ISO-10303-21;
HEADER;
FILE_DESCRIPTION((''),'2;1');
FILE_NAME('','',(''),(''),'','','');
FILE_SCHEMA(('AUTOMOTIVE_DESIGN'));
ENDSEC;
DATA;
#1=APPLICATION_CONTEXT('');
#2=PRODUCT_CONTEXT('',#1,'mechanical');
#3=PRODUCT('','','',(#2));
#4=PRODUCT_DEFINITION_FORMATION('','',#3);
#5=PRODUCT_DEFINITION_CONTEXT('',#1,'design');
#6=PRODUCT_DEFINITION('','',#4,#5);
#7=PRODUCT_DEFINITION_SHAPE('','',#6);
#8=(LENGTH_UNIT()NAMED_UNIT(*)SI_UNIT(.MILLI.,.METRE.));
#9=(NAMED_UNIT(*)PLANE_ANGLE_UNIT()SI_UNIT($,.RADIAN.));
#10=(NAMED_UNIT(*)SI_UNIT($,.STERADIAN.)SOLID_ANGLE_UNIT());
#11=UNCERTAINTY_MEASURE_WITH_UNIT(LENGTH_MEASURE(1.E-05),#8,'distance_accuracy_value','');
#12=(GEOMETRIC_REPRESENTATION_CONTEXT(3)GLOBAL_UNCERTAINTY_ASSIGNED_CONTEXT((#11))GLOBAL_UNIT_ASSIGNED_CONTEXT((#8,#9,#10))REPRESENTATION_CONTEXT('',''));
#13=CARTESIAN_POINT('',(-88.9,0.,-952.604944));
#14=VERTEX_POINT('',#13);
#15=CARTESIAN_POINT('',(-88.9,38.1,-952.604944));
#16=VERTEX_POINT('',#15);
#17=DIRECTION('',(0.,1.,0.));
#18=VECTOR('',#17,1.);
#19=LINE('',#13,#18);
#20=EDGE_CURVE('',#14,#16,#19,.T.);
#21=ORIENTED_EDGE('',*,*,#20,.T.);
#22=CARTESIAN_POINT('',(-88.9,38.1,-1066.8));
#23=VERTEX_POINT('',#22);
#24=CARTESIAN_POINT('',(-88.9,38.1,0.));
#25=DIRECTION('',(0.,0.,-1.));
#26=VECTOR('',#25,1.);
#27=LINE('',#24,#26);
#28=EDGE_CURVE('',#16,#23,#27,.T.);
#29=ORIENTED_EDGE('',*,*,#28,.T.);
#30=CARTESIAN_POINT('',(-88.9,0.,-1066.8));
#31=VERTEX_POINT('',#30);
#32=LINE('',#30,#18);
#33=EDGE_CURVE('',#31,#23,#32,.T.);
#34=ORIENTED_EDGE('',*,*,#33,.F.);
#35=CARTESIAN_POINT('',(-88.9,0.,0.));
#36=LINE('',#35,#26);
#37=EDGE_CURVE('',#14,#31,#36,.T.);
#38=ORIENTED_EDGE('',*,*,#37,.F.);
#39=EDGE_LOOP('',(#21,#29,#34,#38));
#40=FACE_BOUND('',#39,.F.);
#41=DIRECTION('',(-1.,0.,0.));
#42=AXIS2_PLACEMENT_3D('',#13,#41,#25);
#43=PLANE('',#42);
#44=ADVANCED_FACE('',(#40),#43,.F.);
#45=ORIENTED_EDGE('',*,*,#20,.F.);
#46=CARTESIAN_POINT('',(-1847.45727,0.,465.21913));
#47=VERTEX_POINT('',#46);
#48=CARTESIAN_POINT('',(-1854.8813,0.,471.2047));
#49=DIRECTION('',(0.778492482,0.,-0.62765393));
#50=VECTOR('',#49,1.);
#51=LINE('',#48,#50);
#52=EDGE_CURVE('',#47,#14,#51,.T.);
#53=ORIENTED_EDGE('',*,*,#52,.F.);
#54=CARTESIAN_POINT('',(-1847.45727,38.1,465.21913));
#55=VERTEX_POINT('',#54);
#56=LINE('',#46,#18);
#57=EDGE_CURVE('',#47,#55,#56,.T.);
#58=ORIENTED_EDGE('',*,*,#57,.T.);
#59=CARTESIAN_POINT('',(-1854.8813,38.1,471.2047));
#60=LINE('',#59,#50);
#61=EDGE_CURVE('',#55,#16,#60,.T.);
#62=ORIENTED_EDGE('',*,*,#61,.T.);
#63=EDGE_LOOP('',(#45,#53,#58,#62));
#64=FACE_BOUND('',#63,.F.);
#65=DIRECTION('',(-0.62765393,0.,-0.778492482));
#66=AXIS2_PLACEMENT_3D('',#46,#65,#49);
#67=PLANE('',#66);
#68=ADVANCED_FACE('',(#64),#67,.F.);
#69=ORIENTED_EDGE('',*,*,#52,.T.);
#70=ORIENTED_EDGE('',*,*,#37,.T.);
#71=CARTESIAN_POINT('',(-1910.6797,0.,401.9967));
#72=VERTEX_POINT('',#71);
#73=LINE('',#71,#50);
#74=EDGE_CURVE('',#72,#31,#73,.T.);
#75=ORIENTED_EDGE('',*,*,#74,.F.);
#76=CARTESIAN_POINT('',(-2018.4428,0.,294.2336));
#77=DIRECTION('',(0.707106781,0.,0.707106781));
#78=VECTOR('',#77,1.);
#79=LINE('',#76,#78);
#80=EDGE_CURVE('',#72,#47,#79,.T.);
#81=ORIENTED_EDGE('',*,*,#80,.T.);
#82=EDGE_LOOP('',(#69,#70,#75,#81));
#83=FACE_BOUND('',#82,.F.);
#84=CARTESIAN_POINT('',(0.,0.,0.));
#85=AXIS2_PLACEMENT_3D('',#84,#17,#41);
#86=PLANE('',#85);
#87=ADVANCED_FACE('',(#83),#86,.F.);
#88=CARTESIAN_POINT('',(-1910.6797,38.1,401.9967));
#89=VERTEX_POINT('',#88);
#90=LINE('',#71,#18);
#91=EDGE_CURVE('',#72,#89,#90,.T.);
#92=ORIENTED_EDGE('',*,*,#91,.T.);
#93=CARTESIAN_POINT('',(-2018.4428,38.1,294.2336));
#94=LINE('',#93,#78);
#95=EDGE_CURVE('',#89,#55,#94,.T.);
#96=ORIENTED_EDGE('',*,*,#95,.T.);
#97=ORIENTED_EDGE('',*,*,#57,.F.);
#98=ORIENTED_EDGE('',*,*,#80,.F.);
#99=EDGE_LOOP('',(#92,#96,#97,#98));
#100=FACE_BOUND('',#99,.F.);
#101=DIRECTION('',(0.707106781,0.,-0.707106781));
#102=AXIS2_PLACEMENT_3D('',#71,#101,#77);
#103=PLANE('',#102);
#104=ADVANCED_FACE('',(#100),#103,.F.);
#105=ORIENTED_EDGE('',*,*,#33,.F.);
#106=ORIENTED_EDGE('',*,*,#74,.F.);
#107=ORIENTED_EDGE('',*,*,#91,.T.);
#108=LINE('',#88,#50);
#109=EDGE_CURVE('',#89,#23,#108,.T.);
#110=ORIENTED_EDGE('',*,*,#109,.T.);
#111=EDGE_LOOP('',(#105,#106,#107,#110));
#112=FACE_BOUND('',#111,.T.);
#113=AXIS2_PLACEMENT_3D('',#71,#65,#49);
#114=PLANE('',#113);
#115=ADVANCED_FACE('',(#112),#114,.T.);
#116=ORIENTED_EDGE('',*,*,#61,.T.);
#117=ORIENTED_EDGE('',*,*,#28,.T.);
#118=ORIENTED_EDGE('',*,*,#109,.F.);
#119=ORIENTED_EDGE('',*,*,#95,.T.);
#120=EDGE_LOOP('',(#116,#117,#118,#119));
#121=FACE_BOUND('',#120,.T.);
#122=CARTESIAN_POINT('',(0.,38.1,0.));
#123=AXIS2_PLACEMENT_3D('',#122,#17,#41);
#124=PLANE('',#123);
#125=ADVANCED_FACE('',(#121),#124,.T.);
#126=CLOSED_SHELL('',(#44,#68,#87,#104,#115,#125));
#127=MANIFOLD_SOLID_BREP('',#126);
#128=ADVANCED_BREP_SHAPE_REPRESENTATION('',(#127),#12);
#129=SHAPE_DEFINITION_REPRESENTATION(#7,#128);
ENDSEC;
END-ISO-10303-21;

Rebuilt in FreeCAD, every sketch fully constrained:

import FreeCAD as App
import Part
import Sketcher
from FreeCAD import Vector
Q = App.Units.Quantity

doc = App.newDocument("Part")
body = doc.addObject("PartDesign::Body", "Body")

# Sketch on XZ plane
sketch1 = body.newObject("Sketcher::SketchObject", "Sketch")
sketch1.AttachmentSupport = (doc.getObject("XZ_Plane"), [""])
sketch1.MapMode = "FlatFace"
sketch1.addGeometry([
    Part.LineSegment(Vector(-89, -953, 0), Vector(-89, -1067, 0)),
    Part.LineSegment(Vector(-89, -1067, 0), Vector(-1911, 402, 0)),
    Part.LineSegment(Vector(-1911, 402, 0), Vector(-1847, 465, 0)),
    Part.LineSegment(Vector(-1847, 465, 0), Vector(-89, -953, 0)),
], False)
sketch1.addConstraint([
    Sketcher.Constraint("Coincident", 0, 2, 1, 1),
    Sketcher.Constraint("Coincident", 1, 2, 2, 1),
    Sketcher.Constraint("Coincident", 2, 2, 3, 1),
    Sketcher.Constraint("Coincident", 3, 2, 0, 1),
    Sketcher.Constraint("Vertical", 0),
    Sketcher.Constraint("Parallel", 1, 3),
    Sketcher.Constraint("Angle", 2, Q("45 deg")),
    Sketcher.Constraint("DistanceX", 0, 2, -1, 1, Q("3.5 in")),
    Sketcher.Constraint("DistanceY", 0, 2, -1, 1, Q("42 in")),
    Sketcher.Constraint("Distance", 1, Q("92.1314 in")),
    Sketcher.Constraint("DistanceY", 0, 2, 0, 1, Q("114.195 mm")),
    Sketcher.Constraint("DistanceX", 1, 2, -1, 1, Q("75.2236 in")),
])
pad1 = body.newObject("PartDesign::Pad", "Pad")
pad1.Profile = sketch1
pad1.Length = Q("1.5 in")
pad1.Reversed = True

doc.recompute()
